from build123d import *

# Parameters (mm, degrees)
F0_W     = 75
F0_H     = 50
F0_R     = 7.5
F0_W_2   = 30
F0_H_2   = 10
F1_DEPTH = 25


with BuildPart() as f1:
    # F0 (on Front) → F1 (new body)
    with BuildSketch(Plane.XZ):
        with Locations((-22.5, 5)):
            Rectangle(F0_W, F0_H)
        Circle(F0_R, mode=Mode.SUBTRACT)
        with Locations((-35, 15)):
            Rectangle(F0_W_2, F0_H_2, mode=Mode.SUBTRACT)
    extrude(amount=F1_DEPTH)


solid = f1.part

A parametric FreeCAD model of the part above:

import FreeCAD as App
import Part
import Sketcher

V = App.Vector
Q = App.Units.Quantity

doc = App.newDocument("Part")
body = doc.addObject("PartDesign::Body", "Body")

sketch1 = doc.addObject("Sketcher::SketchObject", "Sketch")
body.addObject(sketch1)
sketch1.AttachmentSupport = (doc.XZ_Plane, [""])
sketch1.MapMode = "FlatFace"
sketch1.addGeometry(Part.LineSegment(V(-60, 30, 0), V(-60, -20, 0)), False)
sketch1.addGeometry(Part.LineSegment(V(-60, -20, 0), V(15, -20, 0)), False)
sketch1.addGeometry(Part.LineSegment(V(15, -20, 0), V(15, 30, 0)), False)
sketch1.addGeometry(Part.LineSegment(V(15, 30, 0), V(-60, 30, 0)), False)
sketch1.addGeometry(Part.Circle(V(0, 0, 0), V(0, 0, 1), 8), False)
sketch1.addGeometry(Part.LineSegment(V(-20, 10, 0), V(-50, 10, 0)), False)
sketch1.addGeometry(Part.LineSegment(V(-50, 10, 0), V(-50, 20, 0)), False)
sketch1.addGeometry(Part.LineSegment(V(-50, 20, 0), V(-20, 20, 0)), False)
sketch1.addGeometry(Part.LineSegment(V(-20, 20, 0), V(-20, 10, 0)), False)
sketch1.addConstraint(Sketcher.Constraint("Coincident", 0, 2, 1, 1))
sketch1.addConstraint(Sketcher.Constraint("Coincident", 1, 2, 2, 1))
sketch1.addConstraint(Sketcher.Constraint("Coincident", 2, 2, 3, 1))
sketch1.addConstraint(Sketcher.Constraint("Coincident", 3, 2, 0, 1))
sketch1.addConstraint(Sketcher.Constraint("Coincident", 5, 2, 6, 1))
sketch1.addConstraint(Sketcher.Constraint("Coincident", 6, 2, 7, 1))
sketch1.addConstraint(Sketcher.Constraint("Coincident", 7, 2, 8, 1))
sketch1.addConstraint(Sketcher.Constraint("Coincident", 8, 2, 5, 1))
sketch1.addConstraint(Sketcher.Constraint("Vertical", 0))
sketch1.addConstraint(Sketcher.Constraint("Horizontal", 1))
sketch1.addConstraint(Sketcher.Constraint("Vertical", 2))
sketch1.addConstraint(Sketcher.Constraint("Horizontal", 3))
sketch1.addConstraint(Sketcher.Constraint("Horizontal", 5))
sketch1.addConstraint(Sketcher.Constraint("Vertical", 6))
sketch1.addConstraint(Sketcher.Constraint("Horizontal", 7))
sketch1.addConstraint(Sketcher.Constraint("Vertical", 8))
sketch1.addConstraint(Sketcher.Constraint("Coincident", 4, 3, -1, 1))
sketch1.addConstraint(Sketcher.Constraint("Diameter", 4, Q("15 mm")))
sketch1.addConstraint(Sketcher.Constraint("DistanceX", 1, 1, 1, 2, Q("75 mm")))
sketch1.addConstraint(Sketcher.Constraint("DistanceX", 5, 2, 5, 1, Q("30 mm")))
sketch1.addConstraint(Sketcher.Constraint("DistanceY", 0, 2, 0, 1, Q("50 mm")))
sketch1.addConstraint(Sketcher.Constraint("DistanceY", 6, 1, 6, 2, Q("10 mm")))
sketch1.addConstraint(Sketcher.Constraint("DistanceX", 0, 2, -1, 1, Q("60 mm")))
sketch1.addConstraint(Sketcher.Constraint("DistanceY", 0, 2, -1, 1, Q("20 mm")))
sketch1.addConstraint(Sketcher.Constraint("DistanceX", 5, 2, -1, 1, Q("50 mm")))
sketch1.addConstraint(Sketcher.Constraint("DistanceY", -1, 1, 5, 2, Q("10 mm")))
pad1 = doc.addObject("PartDesign::Pad", "Pad")
body.addObject(pad1)
pad1.Profile = sketch1
pad1.Length = 25

doc.recompute()
